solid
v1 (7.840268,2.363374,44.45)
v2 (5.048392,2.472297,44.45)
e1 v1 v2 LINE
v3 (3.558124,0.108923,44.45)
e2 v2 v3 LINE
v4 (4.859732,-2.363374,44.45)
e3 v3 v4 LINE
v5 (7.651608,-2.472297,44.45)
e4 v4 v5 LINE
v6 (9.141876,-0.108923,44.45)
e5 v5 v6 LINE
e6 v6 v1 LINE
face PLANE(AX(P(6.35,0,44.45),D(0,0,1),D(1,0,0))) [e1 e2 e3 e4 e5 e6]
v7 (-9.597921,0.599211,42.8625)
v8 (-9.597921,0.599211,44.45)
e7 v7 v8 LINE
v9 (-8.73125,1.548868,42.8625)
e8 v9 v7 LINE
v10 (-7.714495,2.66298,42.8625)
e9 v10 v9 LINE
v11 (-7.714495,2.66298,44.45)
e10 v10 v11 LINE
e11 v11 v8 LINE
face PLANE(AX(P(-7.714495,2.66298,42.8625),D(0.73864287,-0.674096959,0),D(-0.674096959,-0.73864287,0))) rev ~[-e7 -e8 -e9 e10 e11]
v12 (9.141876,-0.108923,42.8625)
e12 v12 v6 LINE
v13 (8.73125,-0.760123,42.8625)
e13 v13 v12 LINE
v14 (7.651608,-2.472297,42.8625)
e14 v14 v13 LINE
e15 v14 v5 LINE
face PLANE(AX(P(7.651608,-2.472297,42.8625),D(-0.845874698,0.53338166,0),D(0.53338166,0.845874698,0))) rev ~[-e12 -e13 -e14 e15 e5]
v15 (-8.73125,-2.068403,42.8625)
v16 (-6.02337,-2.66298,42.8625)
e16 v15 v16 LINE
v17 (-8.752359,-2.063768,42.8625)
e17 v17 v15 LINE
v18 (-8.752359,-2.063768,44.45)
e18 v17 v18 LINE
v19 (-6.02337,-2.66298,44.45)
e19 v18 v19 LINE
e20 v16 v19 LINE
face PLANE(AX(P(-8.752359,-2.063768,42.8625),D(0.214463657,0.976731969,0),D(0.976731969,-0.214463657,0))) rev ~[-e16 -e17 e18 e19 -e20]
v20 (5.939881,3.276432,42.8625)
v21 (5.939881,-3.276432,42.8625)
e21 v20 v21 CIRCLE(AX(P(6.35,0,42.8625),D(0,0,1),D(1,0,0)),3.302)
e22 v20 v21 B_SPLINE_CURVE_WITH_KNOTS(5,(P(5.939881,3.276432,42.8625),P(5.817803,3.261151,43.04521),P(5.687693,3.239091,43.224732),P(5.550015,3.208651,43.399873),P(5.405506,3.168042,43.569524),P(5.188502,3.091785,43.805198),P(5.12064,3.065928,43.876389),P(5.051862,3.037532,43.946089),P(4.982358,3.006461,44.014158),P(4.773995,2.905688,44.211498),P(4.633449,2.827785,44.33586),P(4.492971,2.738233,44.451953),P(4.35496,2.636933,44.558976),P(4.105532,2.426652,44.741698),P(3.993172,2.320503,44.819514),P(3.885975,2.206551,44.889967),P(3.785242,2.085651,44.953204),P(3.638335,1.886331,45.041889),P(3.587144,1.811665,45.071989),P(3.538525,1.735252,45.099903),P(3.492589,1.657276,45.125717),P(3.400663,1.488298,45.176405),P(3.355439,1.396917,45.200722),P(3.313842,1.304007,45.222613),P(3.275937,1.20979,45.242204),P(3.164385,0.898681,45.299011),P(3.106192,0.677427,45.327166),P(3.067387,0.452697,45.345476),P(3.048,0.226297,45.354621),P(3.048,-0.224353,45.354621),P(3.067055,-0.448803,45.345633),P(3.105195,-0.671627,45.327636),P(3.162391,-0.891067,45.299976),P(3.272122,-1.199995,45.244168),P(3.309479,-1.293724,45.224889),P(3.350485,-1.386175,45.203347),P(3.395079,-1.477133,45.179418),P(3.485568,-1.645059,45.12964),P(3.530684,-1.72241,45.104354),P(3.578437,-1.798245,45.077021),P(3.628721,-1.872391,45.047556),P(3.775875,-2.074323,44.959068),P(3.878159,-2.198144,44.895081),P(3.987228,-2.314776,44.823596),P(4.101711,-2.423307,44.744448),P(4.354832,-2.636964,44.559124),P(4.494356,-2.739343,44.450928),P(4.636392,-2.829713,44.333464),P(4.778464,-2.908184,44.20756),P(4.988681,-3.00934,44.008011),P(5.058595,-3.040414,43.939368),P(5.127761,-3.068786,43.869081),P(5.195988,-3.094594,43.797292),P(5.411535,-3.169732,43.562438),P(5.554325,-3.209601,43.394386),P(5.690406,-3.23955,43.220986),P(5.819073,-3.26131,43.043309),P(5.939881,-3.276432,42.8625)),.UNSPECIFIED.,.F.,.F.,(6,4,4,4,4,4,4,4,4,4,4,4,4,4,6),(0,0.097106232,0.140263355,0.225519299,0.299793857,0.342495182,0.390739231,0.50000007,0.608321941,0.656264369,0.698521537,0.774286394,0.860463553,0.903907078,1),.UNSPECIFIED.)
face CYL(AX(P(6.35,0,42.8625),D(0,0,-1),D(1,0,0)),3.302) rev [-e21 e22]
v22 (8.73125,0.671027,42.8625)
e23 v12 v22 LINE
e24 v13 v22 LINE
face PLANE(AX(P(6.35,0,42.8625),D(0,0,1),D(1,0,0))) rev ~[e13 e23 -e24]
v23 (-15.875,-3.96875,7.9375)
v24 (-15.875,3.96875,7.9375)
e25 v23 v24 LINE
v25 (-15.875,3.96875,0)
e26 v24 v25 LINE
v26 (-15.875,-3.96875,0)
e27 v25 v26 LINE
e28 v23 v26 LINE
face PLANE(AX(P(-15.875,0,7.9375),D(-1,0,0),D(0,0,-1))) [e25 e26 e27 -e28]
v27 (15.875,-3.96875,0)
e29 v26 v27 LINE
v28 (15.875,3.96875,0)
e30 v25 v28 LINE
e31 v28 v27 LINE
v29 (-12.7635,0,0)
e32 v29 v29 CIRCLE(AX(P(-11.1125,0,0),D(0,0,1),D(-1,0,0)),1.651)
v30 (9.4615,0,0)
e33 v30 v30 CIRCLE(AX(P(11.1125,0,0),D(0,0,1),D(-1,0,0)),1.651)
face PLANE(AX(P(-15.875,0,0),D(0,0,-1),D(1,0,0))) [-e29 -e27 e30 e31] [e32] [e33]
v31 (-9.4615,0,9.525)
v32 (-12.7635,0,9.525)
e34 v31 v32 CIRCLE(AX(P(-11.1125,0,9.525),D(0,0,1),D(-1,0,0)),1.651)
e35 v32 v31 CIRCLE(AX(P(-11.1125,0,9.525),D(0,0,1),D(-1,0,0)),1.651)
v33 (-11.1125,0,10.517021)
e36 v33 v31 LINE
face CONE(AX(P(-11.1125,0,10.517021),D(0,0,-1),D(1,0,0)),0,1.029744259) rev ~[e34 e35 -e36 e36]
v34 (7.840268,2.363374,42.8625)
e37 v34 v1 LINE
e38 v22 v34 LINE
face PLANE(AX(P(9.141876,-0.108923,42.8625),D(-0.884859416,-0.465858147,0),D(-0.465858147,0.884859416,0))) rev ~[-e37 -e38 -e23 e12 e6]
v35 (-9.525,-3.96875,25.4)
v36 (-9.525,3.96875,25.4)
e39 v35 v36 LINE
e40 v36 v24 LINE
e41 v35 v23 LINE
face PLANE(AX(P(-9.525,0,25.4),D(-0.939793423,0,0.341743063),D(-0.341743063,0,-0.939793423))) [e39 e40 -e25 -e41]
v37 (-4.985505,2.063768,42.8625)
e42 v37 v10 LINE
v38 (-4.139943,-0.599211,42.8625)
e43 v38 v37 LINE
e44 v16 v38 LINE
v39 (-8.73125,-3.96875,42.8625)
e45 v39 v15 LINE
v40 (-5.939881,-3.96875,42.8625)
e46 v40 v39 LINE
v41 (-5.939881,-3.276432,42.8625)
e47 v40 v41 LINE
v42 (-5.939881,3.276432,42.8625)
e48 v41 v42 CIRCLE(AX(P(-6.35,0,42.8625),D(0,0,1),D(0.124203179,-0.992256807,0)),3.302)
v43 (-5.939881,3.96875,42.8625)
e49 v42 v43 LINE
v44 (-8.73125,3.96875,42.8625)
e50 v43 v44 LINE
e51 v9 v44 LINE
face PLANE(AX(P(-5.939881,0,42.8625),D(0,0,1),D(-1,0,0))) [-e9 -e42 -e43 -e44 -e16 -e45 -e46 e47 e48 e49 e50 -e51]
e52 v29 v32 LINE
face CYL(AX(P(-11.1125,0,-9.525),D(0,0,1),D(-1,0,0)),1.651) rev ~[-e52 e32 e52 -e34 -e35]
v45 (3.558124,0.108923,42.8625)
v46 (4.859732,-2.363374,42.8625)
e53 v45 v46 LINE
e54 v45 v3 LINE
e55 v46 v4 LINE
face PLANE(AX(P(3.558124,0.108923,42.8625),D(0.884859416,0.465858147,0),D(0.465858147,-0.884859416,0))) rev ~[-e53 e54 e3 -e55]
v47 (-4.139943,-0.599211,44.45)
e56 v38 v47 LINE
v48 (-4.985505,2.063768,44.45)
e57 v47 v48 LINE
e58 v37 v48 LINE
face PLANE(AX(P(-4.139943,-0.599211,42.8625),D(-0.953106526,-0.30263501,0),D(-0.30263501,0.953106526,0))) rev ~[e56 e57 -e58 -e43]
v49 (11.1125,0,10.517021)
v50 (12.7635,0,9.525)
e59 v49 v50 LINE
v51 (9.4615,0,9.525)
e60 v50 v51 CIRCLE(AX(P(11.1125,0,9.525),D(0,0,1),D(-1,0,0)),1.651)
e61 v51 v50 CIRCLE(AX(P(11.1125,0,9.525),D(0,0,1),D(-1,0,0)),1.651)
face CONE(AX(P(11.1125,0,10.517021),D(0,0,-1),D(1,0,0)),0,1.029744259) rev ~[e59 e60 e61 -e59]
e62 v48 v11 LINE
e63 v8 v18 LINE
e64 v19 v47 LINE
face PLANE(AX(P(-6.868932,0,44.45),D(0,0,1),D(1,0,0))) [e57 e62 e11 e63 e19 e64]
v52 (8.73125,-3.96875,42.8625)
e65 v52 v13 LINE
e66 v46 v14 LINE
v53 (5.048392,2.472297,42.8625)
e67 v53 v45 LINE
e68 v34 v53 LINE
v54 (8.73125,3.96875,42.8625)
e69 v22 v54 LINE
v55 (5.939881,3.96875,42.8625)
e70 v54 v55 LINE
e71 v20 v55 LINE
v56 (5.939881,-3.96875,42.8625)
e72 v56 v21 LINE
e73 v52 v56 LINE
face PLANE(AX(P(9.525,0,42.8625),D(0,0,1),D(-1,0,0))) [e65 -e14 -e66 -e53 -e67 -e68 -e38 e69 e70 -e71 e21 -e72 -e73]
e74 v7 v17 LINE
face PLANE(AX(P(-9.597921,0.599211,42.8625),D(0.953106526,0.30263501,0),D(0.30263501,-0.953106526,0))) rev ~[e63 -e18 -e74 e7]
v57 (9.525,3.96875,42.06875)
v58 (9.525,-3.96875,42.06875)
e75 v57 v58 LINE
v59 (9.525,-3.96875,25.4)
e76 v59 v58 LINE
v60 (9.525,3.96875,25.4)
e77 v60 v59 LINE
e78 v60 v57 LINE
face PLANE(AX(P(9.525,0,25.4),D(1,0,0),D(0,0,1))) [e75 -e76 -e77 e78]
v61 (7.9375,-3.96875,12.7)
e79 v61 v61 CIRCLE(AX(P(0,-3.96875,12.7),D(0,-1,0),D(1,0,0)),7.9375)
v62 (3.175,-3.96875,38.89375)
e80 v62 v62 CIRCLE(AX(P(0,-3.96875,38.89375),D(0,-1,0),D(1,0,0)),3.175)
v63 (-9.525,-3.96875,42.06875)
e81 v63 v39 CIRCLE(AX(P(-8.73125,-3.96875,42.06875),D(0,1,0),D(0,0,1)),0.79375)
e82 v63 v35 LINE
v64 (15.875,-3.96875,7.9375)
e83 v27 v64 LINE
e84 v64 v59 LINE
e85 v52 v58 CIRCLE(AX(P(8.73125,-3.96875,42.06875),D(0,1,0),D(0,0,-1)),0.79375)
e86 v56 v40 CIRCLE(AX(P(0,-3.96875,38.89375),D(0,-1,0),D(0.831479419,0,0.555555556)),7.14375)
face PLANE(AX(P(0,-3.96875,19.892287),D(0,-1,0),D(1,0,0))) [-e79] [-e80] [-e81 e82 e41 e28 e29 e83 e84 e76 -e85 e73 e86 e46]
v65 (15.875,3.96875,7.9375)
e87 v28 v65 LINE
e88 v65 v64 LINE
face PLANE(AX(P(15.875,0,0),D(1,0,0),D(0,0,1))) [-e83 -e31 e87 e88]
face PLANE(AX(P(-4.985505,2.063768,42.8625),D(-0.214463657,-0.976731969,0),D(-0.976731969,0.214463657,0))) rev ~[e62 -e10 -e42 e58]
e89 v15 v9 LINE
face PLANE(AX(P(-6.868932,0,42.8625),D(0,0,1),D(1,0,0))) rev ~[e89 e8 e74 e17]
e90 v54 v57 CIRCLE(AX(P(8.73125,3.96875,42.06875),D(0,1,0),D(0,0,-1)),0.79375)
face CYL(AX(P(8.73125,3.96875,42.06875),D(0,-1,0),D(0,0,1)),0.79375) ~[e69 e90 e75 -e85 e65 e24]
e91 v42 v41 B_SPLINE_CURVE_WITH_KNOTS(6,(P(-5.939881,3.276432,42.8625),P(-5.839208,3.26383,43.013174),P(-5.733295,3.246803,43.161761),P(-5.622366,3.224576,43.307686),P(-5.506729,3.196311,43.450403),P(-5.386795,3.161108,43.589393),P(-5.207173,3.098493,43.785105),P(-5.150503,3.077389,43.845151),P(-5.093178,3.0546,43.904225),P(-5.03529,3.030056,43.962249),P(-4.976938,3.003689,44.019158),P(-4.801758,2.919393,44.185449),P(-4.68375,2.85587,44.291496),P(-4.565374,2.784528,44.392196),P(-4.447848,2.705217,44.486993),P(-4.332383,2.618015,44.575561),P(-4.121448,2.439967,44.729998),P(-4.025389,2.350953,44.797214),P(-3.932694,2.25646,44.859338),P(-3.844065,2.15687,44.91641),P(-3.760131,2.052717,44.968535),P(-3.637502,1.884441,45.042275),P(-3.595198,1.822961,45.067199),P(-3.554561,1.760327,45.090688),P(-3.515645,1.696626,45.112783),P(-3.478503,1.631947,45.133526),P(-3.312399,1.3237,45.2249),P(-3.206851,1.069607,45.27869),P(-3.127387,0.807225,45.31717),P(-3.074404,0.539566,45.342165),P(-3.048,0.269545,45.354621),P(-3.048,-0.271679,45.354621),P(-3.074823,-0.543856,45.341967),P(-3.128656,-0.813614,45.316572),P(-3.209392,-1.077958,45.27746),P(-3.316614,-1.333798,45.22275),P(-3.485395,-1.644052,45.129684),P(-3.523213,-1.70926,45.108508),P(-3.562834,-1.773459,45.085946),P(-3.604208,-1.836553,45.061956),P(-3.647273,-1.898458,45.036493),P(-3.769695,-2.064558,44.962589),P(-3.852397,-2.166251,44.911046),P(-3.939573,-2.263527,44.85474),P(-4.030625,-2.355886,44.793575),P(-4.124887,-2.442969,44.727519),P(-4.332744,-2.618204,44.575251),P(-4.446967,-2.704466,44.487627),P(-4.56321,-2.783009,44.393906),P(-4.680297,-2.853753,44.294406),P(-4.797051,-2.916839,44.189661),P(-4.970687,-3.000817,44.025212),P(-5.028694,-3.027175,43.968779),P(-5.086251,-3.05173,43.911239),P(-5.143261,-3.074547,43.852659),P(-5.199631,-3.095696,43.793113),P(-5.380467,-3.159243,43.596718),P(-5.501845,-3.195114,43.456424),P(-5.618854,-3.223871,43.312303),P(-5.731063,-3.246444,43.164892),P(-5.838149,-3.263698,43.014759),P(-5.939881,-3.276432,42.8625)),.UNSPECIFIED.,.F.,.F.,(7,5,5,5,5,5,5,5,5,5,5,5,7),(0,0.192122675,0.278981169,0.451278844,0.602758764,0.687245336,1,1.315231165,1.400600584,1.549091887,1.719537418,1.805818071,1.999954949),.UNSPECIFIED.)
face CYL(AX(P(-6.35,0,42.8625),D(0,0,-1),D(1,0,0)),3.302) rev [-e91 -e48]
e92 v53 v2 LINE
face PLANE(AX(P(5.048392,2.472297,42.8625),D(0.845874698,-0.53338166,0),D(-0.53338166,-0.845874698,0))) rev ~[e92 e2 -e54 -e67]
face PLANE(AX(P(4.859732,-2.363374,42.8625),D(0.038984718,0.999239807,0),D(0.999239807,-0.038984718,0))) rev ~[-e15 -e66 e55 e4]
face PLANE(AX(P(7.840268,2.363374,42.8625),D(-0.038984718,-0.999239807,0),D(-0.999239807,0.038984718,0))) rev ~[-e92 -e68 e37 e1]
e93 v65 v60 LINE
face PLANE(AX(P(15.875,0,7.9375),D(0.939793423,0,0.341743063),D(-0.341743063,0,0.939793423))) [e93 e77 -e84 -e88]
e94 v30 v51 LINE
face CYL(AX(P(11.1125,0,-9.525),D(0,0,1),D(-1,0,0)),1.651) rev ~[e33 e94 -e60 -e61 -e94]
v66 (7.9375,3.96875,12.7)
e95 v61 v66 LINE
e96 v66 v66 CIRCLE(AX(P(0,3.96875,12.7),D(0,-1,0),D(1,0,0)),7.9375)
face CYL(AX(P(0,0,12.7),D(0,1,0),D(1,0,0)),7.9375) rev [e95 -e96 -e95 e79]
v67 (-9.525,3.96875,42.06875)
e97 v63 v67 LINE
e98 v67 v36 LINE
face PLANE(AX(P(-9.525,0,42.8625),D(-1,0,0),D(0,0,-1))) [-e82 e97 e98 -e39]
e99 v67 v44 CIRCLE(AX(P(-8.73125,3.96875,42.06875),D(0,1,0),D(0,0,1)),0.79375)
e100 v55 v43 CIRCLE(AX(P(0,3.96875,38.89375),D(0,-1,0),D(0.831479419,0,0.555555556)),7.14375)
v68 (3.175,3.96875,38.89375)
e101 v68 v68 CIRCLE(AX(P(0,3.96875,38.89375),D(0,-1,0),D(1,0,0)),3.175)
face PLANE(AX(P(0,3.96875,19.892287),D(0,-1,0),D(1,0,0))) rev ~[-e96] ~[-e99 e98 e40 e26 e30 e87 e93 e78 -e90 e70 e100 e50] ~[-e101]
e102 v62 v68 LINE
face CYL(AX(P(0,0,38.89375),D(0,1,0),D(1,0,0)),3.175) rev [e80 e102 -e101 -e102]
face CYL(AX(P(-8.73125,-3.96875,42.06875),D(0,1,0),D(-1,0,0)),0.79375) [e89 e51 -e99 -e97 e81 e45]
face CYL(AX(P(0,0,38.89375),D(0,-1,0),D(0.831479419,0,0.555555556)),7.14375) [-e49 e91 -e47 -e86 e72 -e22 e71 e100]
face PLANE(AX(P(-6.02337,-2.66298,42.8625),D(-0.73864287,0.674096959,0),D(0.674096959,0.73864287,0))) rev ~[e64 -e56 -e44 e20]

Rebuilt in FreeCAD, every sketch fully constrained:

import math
import FreeCAD as App
import Part
import Sketcher

V = App.Vector
Q = App.Units.Quantity


def edges_at(feature, points):
    """Names of the edges that pass closest to the given points."""
    edges = feature.Shape.Edges
    near = lambda p: min(range(len(edges)), key=lambda i: edges[i].distToShape(Part.Vertex(*p))[0])
    return sorted({f"Edge{near(p) + 1}" for p in points})

doc = App.newDocument("Part")
body = doc.addObject("PartDesign::Body", "Body")

sketch1 = body.newObject("Sketcher::SketchObject", "Sketch")
sketch1.AttachmentSupport = (doc.getObject("XZ_Plane"), [""])
sketch1.MapMode = "FlatFace"
sketch1.addGeometry([
    Part.LineSegment(V(-15.9, 7.9, 0), V(-15.9, 0, 0)),
    Part.LineSegment(V(-15.9, 0, 0), V(15.9, 0, 0)),
    Part.LineSegment(V(15.9, 0, 0), V(15.9, 7.9, 0)),
    Part.LineSegment(V(15.9, 7.9, 0), V(9.5, 25.4, 0)),
    Part.LineSegment(V(9.5, 25.4, 0), V(9.5, 42.9, 0)),
    Part.LineSegment(V(9.5, 42.9, 0), V(5.9, 42.9, 0)),
    Part.ArcOfCircle(Part.Circle(V(0, 38.9, 0), V(0, 0, 1), 7.1), math.radians(34), math.radians(146)),
    Part.LineSegment(V(-5.9, 42.9, 0), V(-9.5, 42.9, 0)),
    Part.LineSegment(V(-9.5, 42.9, 0), V(-9.5, 25.4, 0)),
    Part.LineSegment(V(-9.5, 25.4, 0), V(-15.9, 7.9, 0)),
    Part.Circle(V(0, 12.7, 0), V(0, 0, 1), 7.9),
    Part.Circle(V(0, 38.9, 0), V(0, 0, 1), 3.2),
], False)
sketch1.addConstraint([
    Sketcher.Constraint("Coincident", 0, 2, 1, 1),
    Sketcher.Constraint("Coincident", 1, 2, 2, 1),
    Sketcher.Constraint("Coincident", 2, 2, 3, 1),
    Sketcher.Constraint("Coincident", 3, 2, 4, 1),
    Sketcher.Constraint("Coincident", 4, 2, 5, 1),
    Sketcher.Constraint("Coincident", 5, 2, 6, 1),
    Sketcher.Constraint("Coincident", 6, 2, 7, 1),
    Sketcher.Constraint("Coincident", 7, 2, 8, 1),
    Sketcher.Constraint("Coincident", 8, 2, 9, 1),
    Sketcher.Constraint("Coincident", 9, 2, 0, 1),
    Sketcher.Constraint("Vertical", 0),
    Sketcher.Constraint("Horizontal", 1),
    Sketcher.Constraint("Vertical", 2),
    Sketcher.Constraint("Vertical", 4),
    Sketcher.Constraint("Horizontal", 5),
    Sketcher.Constraint("Horizontal", 7),
    Sketcher.Constraint("Vertical", 8),
    Sketcher.Constraint("Coincident", 11, 3, 6, 3),
    Sketcher.Constraint("Symmetric", 0, 2, 1, 2, -1, 1),
    Sketcher.Constraint("Symmetric", 5, 2, 6, 2, -2),
    Sketcher.Constraint("Symmetric", 3, 2, 8, 2, -2),
    Sketcher.Constraint("PointOnObject", 10, 3, -2),
    Sketcher.Constraint("Horizontal", 2, 2, 9, 2),
    Sketcher.Constraint("Diameter", 11, Q("0.25 in")),
    Sketcher.Constraint("Diameter", 10, Q("0.625 in")),
    Sketcher.Constraint("DistanceY", -1, 1, 3, 2, Q("1 in")),
    Sketcher.Constraint("Radius", 6, Q("0.28125 in")),
    Sketcher.Constraint("DistanceX", 9, 2, 3, 2, Q("1 in")),
    Sketcher.Constraint("DistanceX", 1, 1, 1, 2, Q("1.25 in")),
    Sketcher.Constraint("DistanceY", -1, 1, 10, 3, Q("0.5 in")),
    Sketcher.Constraint("DistanceY", 0, 2, 0, 1, Q("0.3125 in")),
    Sketcher.Constraint("DistanceY", 4, 1, 4, 2, Q("0.6875 in")),
    Sketcher.Constraint("DistanceY", -1, 1, 6, 3, Q("1.53125 in")),
])
pad1 = body.newObject("PartDesign::Pad", "Pad")
pad1.Profile = sketch1
pad1.Length = Q("0.3125 in")
pad1.Midplane = True
doc.recompute()

fillet = body.newObject("PartDesign::Fillet", "Fillet")
fillet.Base = (pad1, edges_at(pad1, [(-9.525, 0, 42.862), (9.525, 0, 42.862)]))
fillet.Radius = Q("0.03125 in")

sketch2 = body.newObject("Sketcher::SketchObject", "Sketch001")
sketch2.AttachmentSupport = (doc.getObject("XY_Plane"), [""])
sketch2.MapMode = "FlatFace"
sketch2.addGeometry([
    Part.Circle(V(-11.1, 0, 0), V(0, 0, 1), 1.7),
    Part.Circle(V(11.1, 0, 0), V(0, 0, 1), 1.7),
], False)
sketch2.addConstraint([
    Sketcher.Constraint("Equal", 0, 1),
    Sketcher.Constraint("Symmetric", 0, 3, 1, 3, -1, 1),
    Sketcher.Constraint("PointOnObject", 0, 3, -1),
    Sketcher.Constraint("Diameter", 0, Q("0.13 in")),
    Sketcher.Constraint("DistanceX", 0, 3, -1, 1, Q("0.4375 in")),
])
doc.recompute()
hole = body.newObject("PartDesign::Hole", "Hole")
hole.Profile = sketch2
hole.ThreadType = "None"
hole.Diameter = Q("0.13 in")
hole.DepthType = "Dimension"
hole.Depth = Q("0.375 in")
hole.DrillPoint = "Angled"
hole.DrillPointAngle = 118
hole.Reversed = True

sketch3 = body.newObject("Sketcher::SketchObject", "Sketch002")
sketch3.AttachmentSupport = (doc.getObject("XY_Plane"), [""])
sketch3.MapMode = "FlatFace"
sketch3.AttachmentOffset = App.Placement(V(0, 0, 1.6875 * 25.4), App.Rotation())
sketch3.addGeometry([
    Part.Circle(V(-6.3, 0, 0), V(0, 0, 1), 3.3),
    Part.Circle(V(6.3, 0, 0), V(0, 0, 1), 3.3),
], False)
sketch3.addConstraint([
    Sketcher.Constraint("Equal", 0, 1),
    Sketcher.Constraint("Symmetric", 0, 3, 1, 3, -1, 1),
    Sketcher.Constraint("PointOnObject", 0, 3, -1),
    Sketcher.Constraint("Diameter", 0, Q("0.26 in")),
    Sketcher.Constraint("DistanceX", 0, 3, 1, 3, Q("0.5 in")),
])
pocket1 = body.newObject("PartDesign::Pocket", "Pocket")
pocket1.Profile = sketch3
pocket1.Length = Q("1 in")
pocket1.Reversed = True

sketch4 = body.newObject("Sketcher::SketchObject", "Sketch003")
sketch4.AttachmentSupport = (doc.getObject("XY_Plane"), [""])
sketch4.MapMode = "FlatFace"
sketch4.AttachmentOffset = App.Placement(V(0, 0, 1.6875 * 25.4), App.Rotation())
sketch4.addGeometry([
    Part.LineSegment(V(-5, 2.1, 0), V(-7.7, 2.7, 0)),
    Part.LineSegment(V(-7.7, 2.7, 0), V(-9.6, 0.6, 0)),
    Part.LineSegment(V(-9.6, 0.6, 0), V(-8.8, -2.1, 0)),
    Part.LineSegment(V(-8.8, -2.1, 0), V(-6, -2.7, 0)),
    Part.LineSegment(V(-6, -2.7, 0), V(-4.1, -0.6, 0)),
    Part.LineSegment(V(-4.1, -0.6, 0), V(-5, 2.1, 0)),
    Part.LineSegment(V(9.1, -0.1, 0), V(7.8, 2.4, 0)),
    Part.LineSegment(V(7.8, 2.4, 0), V(5, 2.5, 0)),
    Part.LineSegment(V(5, 2.5, 0), V(3.6, 0.1, 0)),
    Part.LineSegment(V(3.6, 0.1, 0), V(4.9, -2.4, 0)),
    Part.LineSegment(V(4.9, -2.4, 0), V(7.7, -2.5, 0)),
    Part.LineSegment(V(7.7, -2.5, 0), V(9.1, -0.1, 0)),
], False)
sketch4.addConstraint([
    Sketcher.Constraint("Coincident", 0, 2, 1, 1),
    Sketcher.Constraint("Coincident", 1, 2, 2, 1),
    Sketcher.Constraint("Coincident", 2, 2, 3, 1),
    Sketcher.Constraint("Coincident", 3, 2, 4, 1),
    Sketcher.Constraint("Coincident", 4, 2, 5, 1),
    Sketcher.Constraint("Coincident", 5, 2, 0, 1),
    Sketcher.Constraint("Coincident", 6, 2, 7, 1),
    Sketcher.Constraint("Coincident", 7, 2, 8, 1),
    Sketcher.Constraint("Coincident", 8, 2, 9, 1),
    Sketcher.Constraint("Coincident", 9, 2, 10, 1),
    Sketcher.Constraint("Coincident", 10, 2, 11, 1),
    Sketcher.Constraint("Coincident", 11, 2, 6, 1),
    Sketcher.Constraint("Parallel", 0, 3),
    Sketcher.Constraint("Parallel", 1, 4),
    Sketcher.Constraint("Parallel", 2, 5),
    Sketcher.Constraint("Parallel", 6, 9),
    Sketcher.Constraint("Parallel", 7, 10),
    Sketcher.Constraint("Parallel", 8, 11),
    Sketcher.Constraint("Equal", 0, 1),
    Sketcher.Constraint("Equal", 1, 2),
    Sketcher.Constraint("Equal", 2, 3),
    Sketcher.Constraint("Equal", 5, 6),
    Sketcher.Constraint("Equal", 6, 7),
    Sketcher.Constraint("Equal", 7, 8),
    Sketcher.Constraint("Equal", 8, 9),
    Sketcher.Constraint("Distance", 0, Q("0.11 in")),
    Sketcher.Constraint("DistanceY", -1, 1, 0, 2, 2.66298),
    Sketcher.Constraint("DistanceX", 1, 2, -1, 1, 9.597921),
    Sketcher.Constraint("DistanceY", -1, 1, 1, 2, 0.599211),
    Sketcher.Constraint("DistanceX", 2, 2, -1, 1, 8.752359),
    Sketcher.Constraint("DistanceX", 3, 2, -1, 1, 6.02337),
    Sketcher.Constraint("DistanceX", -1, 1, 6, 2, 7.840268),
    Sketcher.Constraint("DistanceX", -1, 1, 9, 2, 4.859732),
    Sketcher.Constraint("DistanceY", 4, 2, 7, 2, 3.071509),
    Sketcher.Constraint("DistanceX", 8, 2, 7, 2, 1.490268),
    Sketcher.Constraint("DistanceY", 8, 2, 6, 2, 2.254451),
])
pad2 = body.newObject("PartDesign::Pad", "Pad001")
pad2.Profile = sketch4
pad2.Length = Q("0.0625 in")

doc.recompute()
